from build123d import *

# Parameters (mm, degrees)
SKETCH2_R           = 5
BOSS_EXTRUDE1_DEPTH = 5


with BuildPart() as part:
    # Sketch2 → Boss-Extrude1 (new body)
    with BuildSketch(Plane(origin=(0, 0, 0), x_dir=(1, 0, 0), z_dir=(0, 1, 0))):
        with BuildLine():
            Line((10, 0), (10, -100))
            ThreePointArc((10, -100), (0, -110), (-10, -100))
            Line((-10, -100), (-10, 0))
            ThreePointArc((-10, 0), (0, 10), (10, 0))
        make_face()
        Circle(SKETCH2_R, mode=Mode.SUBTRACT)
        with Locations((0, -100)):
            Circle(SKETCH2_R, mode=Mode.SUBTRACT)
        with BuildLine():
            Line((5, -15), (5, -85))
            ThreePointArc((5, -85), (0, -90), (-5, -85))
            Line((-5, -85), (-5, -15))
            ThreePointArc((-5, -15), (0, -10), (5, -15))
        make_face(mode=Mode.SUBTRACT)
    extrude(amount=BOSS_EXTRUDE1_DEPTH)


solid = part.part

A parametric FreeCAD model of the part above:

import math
import FreeCAD as App
import Part
import Sketcher
Q = App.Units.Quantity

doc = App.newDocument("Part")
body = doc.addObject("PartDesign::Body", "Body")

sketch1 = doc.addObject("Sketcher::SketchObject", "Sketch")
body.addObject(sketch1)
sketch1.AttachmentSupport = (doc.XZ_Plane, [""])
sketch1.MapMode = "FlatFace"
sketch1.addGeometry(Part.LineSegment(App.Vector(10, 100, 0), App.Vector(10, 0, 0)), False)
sketch1.addGeometry(Part.ArcOfCircle(Part.Circle(App.Vector(0, 0, 0), App.Vector(0, 0, 1), 10), math.radians(180), math.radians(360)), False)
sketch1.addGeometry(Part.LineSegment(App.Vector(-10, 0, 0), App.Vector(-10, 100, 0)), False)
sketch1.addGeometry(Part.ArcOfCircle(Part.Circle(App.Vector(0, 100, 0), App.Vector(0, 0, 1), 10), math.radians(0), math.radians(180)), False)
sketch1.addGeometry(Part.Circle(App.Vector(0, 100, 0), App.Vector(0, 0, 1), 5), False)
sketch1.addGeometry(Part.LineSegment(App.Vector(5, 15, 0), App.Vector(5, 85, 0)), False)
sketch1.addGeometry(Part.ArcOfCircle(Part.Circle(App.Vector(0, 85, 0), App.Vector(0, 0, 1), 5), math.radians(0), math.radians(180)), False)
sketch1.addGeometry(Part.LineSegment(App.Vector(-5, 85, 0), App.Vector(-5, 15, 0)), False)
sketch1.addGeometry(Part.ArcOfCircle(Part.Circle(App.Vector(0, 15, 0), App.Vector(0, 0, 1), 5), math.radians(180), math.radians(360)), False)
sketch1.addGeometry(Part.Circle(App.Vector(0, 0, 0), App.Vector(0, 0, 1), 5), False)
sketch1.addConstraint(Sketcher.Constraint("Tangent", 0, 2, 1, 2))
sketch1.addConstraint(Sketcher.Constraint("Tangent", 1, 1, 2, 1))
sketch1.addConstraint(Sketcher.Constraint("Tangent", 2, 2, 3, 2))
sketch1.addConstraint(Sketcher.Constraint("Tangent", 3, 1, 0, 1))
sketch1.addConstraint(Sketcher.Constraint("Tangent", 5, 2, 6, 1))
sketch1.addConstraint(Sketcher.Constraint("Tangent", 6, 2, 7, 1))
sketch1.addConstraint(Sketcher.Constraint("Tangent", 7, 2, 8, 1))
sketch1.addConstraint(Sketcher.Constraint("Tangent", 8, 2, 5, 1))
sketch1.addConstraint(Sketcher.Constraint("Vertical", 0))
sketch1.addConstraint(Sketcher.Constraint("Vertical", 2))
sketch1.addConstraint(Sketcher.Constraint("Vertical", 5))
sketch1.addConstraint(Sketcher.Constraint("Vertical", 7))
sketch1.addConstraint(Sketcher.Constraint("Coincident", 1, 3, -1, 1))
sketch1.addConstraint(Sketcher.Constraint("Coincident", 9, 3, -1, 1))
sketch1.addConstraint(Sketcher.Constraint("Coincident", 4, 3, 3, 3))
sketch1.addConstraint(Sketcher.Constraint("Equal", 4, 6))
sketch1.addConstraint(Sketcher.Constraint("Equal", 8, 9))
sketch1.addConstraint(Sketcher.Constraint("PointOnObject", 6, 3, -2))
sketch1.addConstraint(Sketcher.Constraint("Diameter", 4, Q("10 mm")))
sketch1.addConstraint(Sketcher.Constraint("Radius", 1, Q("10 mm")))
sketch1.addConstraint(Sketcher.Constraint("DistanceY", 0, 2, 0, 1, Q("100 mm")))
sketch1.addConstraint(Sketcher.Constraint("DistanceY", 5, 1, 5, 2, Q("70 mm")))
sketch1.addConstraint(Sketcher.Constraint("DistanceY", -1, 1, 6, 3, Q("85 mm")))
pad1 = doc.addObject("PartDesign::Pad", "Pad")
body.addObject(pad1)
pad1.Profile = sketch1
pad1.Length = 5
pad1.Reversed = True

doc.recompute()
